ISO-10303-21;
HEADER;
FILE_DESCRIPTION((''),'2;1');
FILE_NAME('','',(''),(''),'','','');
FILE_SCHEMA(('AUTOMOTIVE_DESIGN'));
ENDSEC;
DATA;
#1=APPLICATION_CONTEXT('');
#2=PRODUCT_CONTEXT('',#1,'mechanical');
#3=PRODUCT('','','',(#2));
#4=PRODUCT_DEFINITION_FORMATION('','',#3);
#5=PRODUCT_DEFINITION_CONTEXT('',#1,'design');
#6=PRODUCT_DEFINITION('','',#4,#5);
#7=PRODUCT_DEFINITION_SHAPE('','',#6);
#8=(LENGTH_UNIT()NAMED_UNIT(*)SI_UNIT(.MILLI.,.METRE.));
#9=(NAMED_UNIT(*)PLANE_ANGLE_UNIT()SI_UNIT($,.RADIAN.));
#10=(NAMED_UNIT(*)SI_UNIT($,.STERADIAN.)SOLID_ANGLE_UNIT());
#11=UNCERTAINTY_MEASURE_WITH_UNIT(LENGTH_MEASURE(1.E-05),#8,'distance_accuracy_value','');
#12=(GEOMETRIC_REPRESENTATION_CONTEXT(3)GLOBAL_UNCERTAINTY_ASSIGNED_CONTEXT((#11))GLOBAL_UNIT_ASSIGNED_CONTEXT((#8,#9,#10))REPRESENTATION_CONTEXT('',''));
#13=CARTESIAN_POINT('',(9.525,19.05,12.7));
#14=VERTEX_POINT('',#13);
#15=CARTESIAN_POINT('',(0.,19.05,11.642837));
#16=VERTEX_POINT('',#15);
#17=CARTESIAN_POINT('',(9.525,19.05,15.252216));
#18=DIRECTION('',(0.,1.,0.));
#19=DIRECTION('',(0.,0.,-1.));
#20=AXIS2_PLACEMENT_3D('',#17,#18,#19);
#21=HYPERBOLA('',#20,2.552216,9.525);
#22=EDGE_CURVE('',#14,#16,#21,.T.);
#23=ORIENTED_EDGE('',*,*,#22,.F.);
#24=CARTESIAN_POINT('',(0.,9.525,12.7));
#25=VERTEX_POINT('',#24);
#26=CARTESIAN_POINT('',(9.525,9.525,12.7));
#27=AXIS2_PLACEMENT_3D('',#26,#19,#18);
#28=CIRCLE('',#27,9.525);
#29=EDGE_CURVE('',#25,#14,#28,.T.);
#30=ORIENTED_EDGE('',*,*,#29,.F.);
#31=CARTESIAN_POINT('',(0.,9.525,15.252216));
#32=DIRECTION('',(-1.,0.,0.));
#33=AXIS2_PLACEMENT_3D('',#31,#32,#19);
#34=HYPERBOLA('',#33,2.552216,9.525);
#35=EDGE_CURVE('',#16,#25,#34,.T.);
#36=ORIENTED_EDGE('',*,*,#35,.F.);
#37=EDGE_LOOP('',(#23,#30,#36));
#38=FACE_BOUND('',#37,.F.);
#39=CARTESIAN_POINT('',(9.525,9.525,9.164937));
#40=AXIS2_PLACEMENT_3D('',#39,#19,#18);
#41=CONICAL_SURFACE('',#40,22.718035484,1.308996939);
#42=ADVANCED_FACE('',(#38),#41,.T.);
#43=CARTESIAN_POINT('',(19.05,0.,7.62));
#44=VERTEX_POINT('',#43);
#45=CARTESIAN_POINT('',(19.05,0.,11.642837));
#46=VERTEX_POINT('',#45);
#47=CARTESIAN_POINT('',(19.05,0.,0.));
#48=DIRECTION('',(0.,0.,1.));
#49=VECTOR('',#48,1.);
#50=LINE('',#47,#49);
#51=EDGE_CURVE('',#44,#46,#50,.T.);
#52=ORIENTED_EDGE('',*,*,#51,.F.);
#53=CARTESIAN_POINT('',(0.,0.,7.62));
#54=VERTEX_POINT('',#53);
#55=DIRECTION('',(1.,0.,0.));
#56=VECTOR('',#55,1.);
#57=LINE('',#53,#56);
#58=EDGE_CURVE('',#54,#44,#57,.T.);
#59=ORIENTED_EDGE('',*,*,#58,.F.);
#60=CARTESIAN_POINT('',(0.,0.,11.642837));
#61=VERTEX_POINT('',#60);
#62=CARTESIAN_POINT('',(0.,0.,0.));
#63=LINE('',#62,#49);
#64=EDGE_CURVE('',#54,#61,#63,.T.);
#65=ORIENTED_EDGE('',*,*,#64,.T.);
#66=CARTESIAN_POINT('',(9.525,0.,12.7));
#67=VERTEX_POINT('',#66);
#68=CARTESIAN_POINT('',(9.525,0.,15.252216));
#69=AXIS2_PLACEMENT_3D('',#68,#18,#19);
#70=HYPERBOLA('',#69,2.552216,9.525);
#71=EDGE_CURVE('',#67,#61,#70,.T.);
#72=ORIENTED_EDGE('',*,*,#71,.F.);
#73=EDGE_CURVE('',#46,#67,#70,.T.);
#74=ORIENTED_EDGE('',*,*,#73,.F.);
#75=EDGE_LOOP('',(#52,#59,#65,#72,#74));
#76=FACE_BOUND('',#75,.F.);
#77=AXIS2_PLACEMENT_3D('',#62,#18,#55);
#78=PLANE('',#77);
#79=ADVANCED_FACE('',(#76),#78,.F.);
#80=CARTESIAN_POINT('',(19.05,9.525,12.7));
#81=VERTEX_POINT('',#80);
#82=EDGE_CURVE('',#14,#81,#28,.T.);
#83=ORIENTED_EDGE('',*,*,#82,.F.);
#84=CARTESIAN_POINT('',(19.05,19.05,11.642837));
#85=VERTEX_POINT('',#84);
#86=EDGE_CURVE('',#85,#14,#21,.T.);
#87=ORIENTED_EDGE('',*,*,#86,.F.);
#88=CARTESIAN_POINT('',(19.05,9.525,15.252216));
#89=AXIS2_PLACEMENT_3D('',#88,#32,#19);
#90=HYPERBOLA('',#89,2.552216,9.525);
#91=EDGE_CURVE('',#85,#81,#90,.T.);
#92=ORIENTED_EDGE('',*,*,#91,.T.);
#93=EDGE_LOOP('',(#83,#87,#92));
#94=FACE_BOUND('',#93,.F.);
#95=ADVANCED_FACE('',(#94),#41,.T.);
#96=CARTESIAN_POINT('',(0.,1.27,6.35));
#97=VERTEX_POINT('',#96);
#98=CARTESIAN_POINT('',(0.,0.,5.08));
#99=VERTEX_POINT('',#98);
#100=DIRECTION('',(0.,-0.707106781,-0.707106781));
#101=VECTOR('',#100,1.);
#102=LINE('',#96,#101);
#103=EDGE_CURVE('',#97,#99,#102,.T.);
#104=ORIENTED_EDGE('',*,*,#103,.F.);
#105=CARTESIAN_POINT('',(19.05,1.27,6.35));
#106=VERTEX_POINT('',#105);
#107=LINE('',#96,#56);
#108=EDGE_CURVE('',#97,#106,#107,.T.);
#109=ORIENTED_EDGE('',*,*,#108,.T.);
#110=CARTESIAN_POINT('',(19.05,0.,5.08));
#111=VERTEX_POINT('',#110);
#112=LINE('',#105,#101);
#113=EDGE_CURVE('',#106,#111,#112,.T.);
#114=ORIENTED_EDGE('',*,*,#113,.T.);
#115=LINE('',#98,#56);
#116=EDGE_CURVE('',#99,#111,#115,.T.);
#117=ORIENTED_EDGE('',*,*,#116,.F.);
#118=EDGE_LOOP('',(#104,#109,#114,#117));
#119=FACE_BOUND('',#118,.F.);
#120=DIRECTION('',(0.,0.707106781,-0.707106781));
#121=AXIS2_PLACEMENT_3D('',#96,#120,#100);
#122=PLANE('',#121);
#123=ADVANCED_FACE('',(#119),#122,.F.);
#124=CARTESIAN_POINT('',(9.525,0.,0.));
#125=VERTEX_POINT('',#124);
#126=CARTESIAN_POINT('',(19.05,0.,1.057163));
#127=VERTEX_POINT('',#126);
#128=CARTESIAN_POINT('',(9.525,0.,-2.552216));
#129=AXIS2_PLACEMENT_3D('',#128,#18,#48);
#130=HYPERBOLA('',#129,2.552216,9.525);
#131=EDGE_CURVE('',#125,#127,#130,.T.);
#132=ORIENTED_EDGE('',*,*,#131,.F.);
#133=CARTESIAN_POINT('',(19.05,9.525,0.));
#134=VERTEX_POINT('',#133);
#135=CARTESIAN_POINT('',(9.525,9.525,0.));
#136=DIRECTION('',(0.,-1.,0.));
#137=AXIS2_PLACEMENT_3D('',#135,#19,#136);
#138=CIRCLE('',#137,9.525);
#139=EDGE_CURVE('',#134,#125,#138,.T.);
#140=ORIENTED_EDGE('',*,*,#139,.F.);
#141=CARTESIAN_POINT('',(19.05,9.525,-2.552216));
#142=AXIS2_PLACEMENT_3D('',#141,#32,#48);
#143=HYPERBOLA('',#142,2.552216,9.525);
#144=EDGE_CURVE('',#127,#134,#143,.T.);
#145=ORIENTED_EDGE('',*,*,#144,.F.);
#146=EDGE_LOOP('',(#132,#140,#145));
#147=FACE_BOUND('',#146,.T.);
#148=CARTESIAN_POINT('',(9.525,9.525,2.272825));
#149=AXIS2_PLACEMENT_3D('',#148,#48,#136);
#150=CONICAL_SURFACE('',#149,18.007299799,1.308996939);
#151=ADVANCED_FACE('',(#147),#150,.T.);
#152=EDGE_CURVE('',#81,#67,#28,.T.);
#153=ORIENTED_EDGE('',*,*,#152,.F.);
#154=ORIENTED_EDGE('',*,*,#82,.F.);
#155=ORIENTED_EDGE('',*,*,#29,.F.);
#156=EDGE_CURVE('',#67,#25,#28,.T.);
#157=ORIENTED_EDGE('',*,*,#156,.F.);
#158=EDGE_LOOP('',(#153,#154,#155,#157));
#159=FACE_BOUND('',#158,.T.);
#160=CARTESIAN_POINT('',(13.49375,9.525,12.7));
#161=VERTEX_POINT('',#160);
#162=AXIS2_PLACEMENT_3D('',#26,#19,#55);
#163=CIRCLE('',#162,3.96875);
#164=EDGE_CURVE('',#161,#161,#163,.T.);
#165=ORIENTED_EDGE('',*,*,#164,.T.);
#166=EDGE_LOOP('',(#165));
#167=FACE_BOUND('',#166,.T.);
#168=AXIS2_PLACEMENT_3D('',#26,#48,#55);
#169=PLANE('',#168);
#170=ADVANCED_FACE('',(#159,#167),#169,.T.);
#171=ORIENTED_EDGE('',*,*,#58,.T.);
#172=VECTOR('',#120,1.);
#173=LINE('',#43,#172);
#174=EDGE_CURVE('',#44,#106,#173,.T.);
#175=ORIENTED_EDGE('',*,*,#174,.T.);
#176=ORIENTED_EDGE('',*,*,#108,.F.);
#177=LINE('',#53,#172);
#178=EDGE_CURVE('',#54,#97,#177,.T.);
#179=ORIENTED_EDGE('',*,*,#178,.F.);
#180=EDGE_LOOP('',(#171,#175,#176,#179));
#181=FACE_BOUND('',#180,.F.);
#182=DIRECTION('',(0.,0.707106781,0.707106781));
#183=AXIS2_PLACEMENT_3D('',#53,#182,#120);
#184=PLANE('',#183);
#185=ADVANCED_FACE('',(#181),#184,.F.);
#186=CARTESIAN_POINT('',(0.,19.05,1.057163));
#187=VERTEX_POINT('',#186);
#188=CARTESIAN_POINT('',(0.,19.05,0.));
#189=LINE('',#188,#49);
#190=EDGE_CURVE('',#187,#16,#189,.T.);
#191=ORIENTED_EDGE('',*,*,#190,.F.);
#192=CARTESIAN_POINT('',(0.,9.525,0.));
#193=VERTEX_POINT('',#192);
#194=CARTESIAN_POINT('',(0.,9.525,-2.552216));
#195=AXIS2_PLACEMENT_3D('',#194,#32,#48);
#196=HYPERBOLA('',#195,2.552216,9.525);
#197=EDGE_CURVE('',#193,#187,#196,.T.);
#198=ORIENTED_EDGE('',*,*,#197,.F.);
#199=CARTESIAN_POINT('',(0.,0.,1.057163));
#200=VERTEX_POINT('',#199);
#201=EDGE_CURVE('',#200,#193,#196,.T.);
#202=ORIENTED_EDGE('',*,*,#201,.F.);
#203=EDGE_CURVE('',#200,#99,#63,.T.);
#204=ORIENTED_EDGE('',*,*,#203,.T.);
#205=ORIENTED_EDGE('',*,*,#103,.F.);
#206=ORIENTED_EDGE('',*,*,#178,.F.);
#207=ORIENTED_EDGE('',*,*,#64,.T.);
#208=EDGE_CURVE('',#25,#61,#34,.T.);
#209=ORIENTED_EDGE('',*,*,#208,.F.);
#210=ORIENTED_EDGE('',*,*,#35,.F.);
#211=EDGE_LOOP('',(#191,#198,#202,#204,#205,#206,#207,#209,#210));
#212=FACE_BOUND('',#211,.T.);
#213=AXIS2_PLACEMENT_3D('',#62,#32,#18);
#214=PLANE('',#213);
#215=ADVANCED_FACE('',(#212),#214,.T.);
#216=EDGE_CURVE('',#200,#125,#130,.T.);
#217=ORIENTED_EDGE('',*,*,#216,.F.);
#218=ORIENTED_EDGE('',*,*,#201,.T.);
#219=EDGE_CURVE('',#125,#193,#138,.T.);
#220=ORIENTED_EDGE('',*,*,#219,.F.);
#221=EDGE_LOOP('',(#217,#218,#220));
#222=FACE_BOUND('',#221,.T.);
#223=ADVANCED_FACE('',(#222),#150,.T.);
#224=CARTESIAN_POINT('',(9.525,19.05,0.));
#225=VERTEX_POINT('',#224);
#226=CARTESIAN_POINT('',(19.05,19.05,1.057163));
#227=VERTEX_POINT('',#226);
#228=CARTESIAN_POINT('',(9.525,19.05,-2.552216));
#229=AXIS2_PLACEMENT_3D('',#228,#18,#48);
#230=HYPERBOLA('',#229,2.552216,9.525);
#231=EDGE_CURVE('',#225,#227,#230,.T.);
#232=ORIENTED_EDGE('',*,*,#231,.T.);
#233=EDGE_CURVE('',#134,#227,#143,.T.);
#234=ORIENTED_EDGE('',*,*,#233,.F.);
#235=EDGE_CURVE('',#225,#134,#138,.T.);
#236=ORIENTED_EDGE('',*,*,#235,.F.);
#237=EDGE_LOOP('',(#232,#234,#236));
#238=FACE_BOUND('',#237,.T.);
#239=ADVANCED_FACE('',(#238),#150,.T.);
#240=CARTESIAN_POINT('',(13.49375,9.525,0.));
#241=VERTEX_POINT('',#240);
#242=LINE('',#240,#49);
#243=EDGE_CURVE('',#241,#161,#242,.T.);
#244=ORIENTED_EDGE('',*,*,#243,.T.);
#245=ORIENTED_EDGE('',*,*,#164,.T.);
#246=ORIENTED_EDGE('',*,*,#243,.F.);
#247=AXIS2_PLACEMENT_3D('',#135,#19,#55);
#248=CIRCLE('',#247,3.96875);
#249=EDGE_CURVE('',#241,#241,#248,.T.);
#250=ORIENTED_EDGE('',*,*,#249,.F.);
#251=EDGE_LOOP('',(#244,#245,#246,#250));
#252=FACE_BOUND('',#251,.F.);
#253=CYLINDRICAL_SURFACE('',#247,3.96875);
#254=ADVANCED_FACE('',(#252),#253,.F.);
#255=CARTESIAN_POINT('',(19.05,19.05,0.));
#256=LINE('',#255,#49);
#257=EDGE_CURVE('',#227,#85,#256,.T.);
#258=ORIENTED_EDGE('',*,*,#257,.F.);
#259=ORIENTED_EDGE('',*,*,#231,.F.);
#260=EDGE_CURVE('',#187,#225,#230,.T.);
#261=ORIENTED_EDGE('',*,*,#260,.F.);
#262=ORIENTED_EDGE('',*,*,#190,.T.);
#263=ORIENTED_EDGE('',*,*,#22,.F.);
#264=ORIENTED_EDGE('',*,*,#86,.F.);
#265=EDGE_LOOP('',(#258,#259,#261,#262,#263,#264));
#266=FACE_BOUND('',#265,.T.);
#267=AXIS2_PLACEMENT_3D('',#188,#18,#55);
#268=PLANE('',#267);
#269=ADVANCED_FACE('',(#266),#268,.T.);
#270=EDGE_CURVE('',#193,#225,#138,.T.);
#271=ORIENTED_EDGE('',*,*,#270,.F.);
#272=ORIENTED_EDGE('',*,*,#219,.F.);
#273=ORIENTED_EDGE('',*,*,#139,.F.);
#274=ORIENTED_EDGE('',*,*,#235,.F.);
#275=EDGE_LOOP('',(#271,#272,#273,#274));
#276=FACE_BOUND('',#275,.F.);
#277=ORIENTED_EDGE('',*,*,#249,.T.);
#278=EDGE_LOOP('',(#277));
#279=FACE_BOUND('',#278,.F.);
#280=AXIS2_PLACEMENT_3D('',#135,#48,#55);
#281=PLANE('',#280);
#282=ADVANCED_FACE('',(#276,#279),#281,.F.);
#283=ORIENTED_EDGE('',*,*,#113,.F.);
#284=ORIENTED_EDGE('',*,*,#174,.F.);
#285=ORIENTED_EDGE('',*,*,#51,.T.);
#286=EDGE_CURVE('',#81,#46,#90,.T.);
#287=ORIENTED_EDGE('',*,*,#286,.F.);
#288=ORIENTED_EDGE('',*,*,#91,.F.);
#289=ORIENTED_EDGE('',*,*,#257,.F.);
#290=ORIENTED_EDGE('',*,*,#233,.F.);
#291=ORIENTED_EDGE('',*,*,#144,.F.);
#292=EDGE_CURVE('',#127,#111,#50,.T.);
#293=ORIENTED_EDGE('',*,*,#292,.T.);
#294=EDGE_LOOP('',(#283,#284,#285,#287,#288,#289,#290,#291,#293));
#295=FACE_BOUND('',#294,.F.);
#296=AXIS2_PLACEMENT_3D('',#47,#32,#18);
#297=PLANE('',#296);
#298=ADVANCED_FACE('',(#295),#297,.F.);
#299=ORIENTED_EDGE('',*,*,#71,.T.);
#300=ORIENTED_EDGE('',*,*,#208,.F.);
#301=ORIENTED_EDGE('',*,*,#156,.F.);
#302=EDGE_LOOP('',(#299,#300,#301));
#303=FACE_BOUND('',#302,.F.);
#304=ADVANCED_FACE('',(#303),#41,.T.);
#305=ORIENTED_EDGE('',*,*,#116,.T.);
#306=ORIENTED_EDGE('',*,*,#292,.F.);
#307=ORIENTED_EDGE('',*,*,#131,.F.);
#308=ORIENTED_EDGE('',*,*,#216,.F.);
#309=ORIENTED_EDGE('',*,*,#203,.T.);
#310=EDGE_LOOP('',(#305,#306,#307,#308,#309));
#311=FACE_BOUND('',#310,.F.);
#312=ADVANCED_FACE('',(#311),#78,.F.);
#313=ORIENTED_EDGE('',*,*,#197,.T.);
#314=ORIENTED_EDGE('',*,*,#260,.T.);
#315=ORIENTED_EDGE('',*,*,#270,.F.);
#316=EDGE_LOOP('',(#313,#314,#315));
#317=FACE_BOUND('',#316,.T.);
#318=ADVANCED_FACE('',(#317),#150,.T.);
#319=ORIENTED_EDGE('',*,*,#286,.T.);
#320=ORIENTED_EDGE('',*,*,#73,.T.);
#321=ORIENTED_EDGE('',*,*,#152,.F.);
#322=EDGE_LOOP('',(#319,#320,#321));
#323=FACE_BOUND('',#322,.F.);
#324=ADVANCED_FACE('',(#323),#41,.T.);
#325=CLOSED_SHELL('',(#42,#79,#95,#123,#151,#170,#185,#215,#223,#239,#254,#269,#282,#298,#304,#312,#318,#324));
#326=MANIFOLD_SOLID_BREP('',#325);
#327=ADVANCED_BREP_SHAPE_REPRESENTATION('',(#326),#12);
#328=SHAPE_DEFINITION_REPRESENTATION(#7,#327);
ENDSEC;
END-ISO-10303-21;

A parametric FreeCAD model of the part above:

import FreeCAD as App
import Part
import Sketcher
Q = App.Units.Quantity


def add_polygon(sketch, points):
    """Adds a closed chain of lines whose ends are joined by coincident constraints."""
    first, n = sketch.GeometryCount, len(points)
    for a, b in zip(points, points[1:] + points[:1]):
        sketch.addGeometry(Part.LineSegment(App.Vector(*a, 0), App.Vector(*b, 0)), False)
    for i in range(n):
        sketch.addConstraint(Sketcher.Constraint("Coincident", first + i, 2, first + (i + 1) % n, 1))

doc = App.newDocument("Part")
body = doc.addObject("PartDesign::Body", "Body")

# Sketch on XY plane
sketch1 = body.newObject("Sketcher::SketchObject", "Sketch")
sketch1.AttachmentSupport = (doc.getObject("XY_Plane"), [""])
sketch1.MapMode = "FlatFace"
add_polygon(sketch1, [(0, 19), (0, 0), (19, 0), (19, 19)])  # lines 0-3
sketch1.addConstraint(Sketcher.Constraint("Vertical", 0))
sketch1.addConstraint(Sketcher.Constraint("Horizontal", 1))
sketch1.addConstraint(Sketcher.Constraint("Vertical", 2))
sketch1.addConstraint(Sketcher.Constraint("Horizontal", 3))
sketch1.addConstraint(Sketcher.Constraint("Coincident", 0, 2, -1, 1))
sketch1.addConstraint(Sketcher.Constraint("Equal", 3, 0))
sketch1.addConstraint(Sketcher.Constraint("DistanceX", 1, 1, 1, 2, Q("0.75 in")))
pad1 = body.newObject("PartDesign::Pad", "Pad")
pad1.Profile = sketch1
pad1.Length = Q("0.5 in")

# Sketch on YZ plane
sketch2 = body.newObject("Sketcher::SketchObject", "Sketch001")
sketch2.AttachmentSupport = (doc.getObject("YZ_Plane"), [""])
sketch2.MapMode = "FlatFace"
add_polygon(sketch2, [(0, 7.6), (1.3, 6.3), (0, 5.1)])  # lines 0-2
sketch2.addConstraint(Sketcher.Constraint("Vertical", 2))
sketch2.addConstraint(Sketcher.Constraint("PointOnObject", 1, 2, -2))
sketch2.addConstraint(Sketcher.Constraint("Perpendicular", 0, 1))
sketch2.addConstraint(Sketcher.Constraint("Equal", 0, 1))
sketch2.addConstraint(Sketcher.Constraint("DistanceY", 2, 1, 2, 2, Q("0.1 in")))
sketch2.addConstraint(Sketcher.Constraint("DistanceY", -1, 1, 1, 2, Q("0.2 in")))
pocket1 = body.newObject("PartDesign::Pocket", "Pocket")
pocket1.Profile = sketch2
pocket1.Length = Q("0.75 in")
pocket1.Reversed = True

# Sketch on XY plane
sketch3 = body.newObject("Sketcher::SketchObject", "Sketch002")
sketch3.AttachmentSupport = (doc.getObject("XY_Plane"), [""])
sketch3.MapMode = "FlatFace"
sketch3.addGeometry(Part.Circle(App.Vector(9.5, 9.5, 0), App.Vector(0, 0, 1), 4), False)
sketch3.addConstraint(Sketcher.Constraint("Diameter", 0, Q("0.3125 in")))
sketch3.addConstraint(Sketcher.Constraint("DistanceX", -1, 1, 0, 3, Q("0.375 in")))
sketch3.addConstraint(Sketcher.Constraint("DistanceY", -1, 1, 0, 3, Q("0.375 in")))
pocket2 = body.newObject("PartDesign::Pocket", "Pocket001")
pocket2.Profile = sketch3
pocket2.Length = Q("0.75 in")
pocket2.Reversed = True

# Sketch on YZ plane
sketch4 = body.newObject("Sketcher::SketchObject", "Sketch003")
sketch4.AttachmentSupport = (doc.getObject("YZ_Plane"), [""])
sketch4.MapMode = "FlatFace"
sketch4.AttachmentOffset = App.Placement(App.Vector(0, 0, 0.375 * 25.4), App.Rotation())
add_polygon(sketch4, [(32.2, 9.2), (19.1, 12.7), (32.2, 16.2)])  # lines 0-2
add_polygon(sketch4, [(-8.5, 2.3), (0, 0), (-8.5, 0)])  # lines 3-5
sketch4.addGeometry(Part.LineSegment(App.Vector(9.5, 16.2, 0), App.Vector(9.5, 0, 0)), True)  # axis
sketch4.addConstraint(Sketcher.Constraint("Vertical", 2))
sketch4.addConstraint(Sketcher.Constraint("Horizontal", 4))
sketch4.addConstraint(Sketcher.Constraint("Vertical", 5))
sketch4.addConstraint(Sketcher.Constraint("Vertical", 6))
sketch4.addConstraint(Sketcher.Constraint("Coincident", 3, 2, -1, 1))
sketch4.addConstraint(Sketcher.Constraint("PointOnObject", 6, 2, -1))
sketch4.addConstraint(Sketcher.Constraint("Parallel", 0, 3))
sketch4.addConstraint(Sketcher.Constraint("Horizontal", 1, 2, 6, 1))
sketch4.addConstraint(Sketcher.Constraint("Equal", 0, 1))
sketch4.addConstraint(Sketcher.Constraint("Angle", 0, Q("165 deg")))
sketch4.addConstraint(Sketcher.Constraint("DistanceY", -1, 1, 0, 2, Q("0.5 in")))
sketch4.addConstraint(Sketcher.Constraint("DistanceX", -1, 1, 0, 2, Q("0.75 in")))
sketch4.addConstraint(Sketcher.Constraint("DistanceX", -1, 1, 6, 1, Q("0.375 in")))
sketch4.addConstraint(Sketcher.Constraint("DistanceX", 4, 2, 4, 1, 8.4823))
sketch4.addConstraint(Sketcher.Constraint("DistanceY", 2, 2, 2, 1, 7.070126))
groove = body.newObject("PartDesign::Groove", "Groove")
groove.Profile = sketch4
groove.ReferenceAxis = (sketch4, ["Axis0"])
groove.Angle = 360

doc.recompute()
